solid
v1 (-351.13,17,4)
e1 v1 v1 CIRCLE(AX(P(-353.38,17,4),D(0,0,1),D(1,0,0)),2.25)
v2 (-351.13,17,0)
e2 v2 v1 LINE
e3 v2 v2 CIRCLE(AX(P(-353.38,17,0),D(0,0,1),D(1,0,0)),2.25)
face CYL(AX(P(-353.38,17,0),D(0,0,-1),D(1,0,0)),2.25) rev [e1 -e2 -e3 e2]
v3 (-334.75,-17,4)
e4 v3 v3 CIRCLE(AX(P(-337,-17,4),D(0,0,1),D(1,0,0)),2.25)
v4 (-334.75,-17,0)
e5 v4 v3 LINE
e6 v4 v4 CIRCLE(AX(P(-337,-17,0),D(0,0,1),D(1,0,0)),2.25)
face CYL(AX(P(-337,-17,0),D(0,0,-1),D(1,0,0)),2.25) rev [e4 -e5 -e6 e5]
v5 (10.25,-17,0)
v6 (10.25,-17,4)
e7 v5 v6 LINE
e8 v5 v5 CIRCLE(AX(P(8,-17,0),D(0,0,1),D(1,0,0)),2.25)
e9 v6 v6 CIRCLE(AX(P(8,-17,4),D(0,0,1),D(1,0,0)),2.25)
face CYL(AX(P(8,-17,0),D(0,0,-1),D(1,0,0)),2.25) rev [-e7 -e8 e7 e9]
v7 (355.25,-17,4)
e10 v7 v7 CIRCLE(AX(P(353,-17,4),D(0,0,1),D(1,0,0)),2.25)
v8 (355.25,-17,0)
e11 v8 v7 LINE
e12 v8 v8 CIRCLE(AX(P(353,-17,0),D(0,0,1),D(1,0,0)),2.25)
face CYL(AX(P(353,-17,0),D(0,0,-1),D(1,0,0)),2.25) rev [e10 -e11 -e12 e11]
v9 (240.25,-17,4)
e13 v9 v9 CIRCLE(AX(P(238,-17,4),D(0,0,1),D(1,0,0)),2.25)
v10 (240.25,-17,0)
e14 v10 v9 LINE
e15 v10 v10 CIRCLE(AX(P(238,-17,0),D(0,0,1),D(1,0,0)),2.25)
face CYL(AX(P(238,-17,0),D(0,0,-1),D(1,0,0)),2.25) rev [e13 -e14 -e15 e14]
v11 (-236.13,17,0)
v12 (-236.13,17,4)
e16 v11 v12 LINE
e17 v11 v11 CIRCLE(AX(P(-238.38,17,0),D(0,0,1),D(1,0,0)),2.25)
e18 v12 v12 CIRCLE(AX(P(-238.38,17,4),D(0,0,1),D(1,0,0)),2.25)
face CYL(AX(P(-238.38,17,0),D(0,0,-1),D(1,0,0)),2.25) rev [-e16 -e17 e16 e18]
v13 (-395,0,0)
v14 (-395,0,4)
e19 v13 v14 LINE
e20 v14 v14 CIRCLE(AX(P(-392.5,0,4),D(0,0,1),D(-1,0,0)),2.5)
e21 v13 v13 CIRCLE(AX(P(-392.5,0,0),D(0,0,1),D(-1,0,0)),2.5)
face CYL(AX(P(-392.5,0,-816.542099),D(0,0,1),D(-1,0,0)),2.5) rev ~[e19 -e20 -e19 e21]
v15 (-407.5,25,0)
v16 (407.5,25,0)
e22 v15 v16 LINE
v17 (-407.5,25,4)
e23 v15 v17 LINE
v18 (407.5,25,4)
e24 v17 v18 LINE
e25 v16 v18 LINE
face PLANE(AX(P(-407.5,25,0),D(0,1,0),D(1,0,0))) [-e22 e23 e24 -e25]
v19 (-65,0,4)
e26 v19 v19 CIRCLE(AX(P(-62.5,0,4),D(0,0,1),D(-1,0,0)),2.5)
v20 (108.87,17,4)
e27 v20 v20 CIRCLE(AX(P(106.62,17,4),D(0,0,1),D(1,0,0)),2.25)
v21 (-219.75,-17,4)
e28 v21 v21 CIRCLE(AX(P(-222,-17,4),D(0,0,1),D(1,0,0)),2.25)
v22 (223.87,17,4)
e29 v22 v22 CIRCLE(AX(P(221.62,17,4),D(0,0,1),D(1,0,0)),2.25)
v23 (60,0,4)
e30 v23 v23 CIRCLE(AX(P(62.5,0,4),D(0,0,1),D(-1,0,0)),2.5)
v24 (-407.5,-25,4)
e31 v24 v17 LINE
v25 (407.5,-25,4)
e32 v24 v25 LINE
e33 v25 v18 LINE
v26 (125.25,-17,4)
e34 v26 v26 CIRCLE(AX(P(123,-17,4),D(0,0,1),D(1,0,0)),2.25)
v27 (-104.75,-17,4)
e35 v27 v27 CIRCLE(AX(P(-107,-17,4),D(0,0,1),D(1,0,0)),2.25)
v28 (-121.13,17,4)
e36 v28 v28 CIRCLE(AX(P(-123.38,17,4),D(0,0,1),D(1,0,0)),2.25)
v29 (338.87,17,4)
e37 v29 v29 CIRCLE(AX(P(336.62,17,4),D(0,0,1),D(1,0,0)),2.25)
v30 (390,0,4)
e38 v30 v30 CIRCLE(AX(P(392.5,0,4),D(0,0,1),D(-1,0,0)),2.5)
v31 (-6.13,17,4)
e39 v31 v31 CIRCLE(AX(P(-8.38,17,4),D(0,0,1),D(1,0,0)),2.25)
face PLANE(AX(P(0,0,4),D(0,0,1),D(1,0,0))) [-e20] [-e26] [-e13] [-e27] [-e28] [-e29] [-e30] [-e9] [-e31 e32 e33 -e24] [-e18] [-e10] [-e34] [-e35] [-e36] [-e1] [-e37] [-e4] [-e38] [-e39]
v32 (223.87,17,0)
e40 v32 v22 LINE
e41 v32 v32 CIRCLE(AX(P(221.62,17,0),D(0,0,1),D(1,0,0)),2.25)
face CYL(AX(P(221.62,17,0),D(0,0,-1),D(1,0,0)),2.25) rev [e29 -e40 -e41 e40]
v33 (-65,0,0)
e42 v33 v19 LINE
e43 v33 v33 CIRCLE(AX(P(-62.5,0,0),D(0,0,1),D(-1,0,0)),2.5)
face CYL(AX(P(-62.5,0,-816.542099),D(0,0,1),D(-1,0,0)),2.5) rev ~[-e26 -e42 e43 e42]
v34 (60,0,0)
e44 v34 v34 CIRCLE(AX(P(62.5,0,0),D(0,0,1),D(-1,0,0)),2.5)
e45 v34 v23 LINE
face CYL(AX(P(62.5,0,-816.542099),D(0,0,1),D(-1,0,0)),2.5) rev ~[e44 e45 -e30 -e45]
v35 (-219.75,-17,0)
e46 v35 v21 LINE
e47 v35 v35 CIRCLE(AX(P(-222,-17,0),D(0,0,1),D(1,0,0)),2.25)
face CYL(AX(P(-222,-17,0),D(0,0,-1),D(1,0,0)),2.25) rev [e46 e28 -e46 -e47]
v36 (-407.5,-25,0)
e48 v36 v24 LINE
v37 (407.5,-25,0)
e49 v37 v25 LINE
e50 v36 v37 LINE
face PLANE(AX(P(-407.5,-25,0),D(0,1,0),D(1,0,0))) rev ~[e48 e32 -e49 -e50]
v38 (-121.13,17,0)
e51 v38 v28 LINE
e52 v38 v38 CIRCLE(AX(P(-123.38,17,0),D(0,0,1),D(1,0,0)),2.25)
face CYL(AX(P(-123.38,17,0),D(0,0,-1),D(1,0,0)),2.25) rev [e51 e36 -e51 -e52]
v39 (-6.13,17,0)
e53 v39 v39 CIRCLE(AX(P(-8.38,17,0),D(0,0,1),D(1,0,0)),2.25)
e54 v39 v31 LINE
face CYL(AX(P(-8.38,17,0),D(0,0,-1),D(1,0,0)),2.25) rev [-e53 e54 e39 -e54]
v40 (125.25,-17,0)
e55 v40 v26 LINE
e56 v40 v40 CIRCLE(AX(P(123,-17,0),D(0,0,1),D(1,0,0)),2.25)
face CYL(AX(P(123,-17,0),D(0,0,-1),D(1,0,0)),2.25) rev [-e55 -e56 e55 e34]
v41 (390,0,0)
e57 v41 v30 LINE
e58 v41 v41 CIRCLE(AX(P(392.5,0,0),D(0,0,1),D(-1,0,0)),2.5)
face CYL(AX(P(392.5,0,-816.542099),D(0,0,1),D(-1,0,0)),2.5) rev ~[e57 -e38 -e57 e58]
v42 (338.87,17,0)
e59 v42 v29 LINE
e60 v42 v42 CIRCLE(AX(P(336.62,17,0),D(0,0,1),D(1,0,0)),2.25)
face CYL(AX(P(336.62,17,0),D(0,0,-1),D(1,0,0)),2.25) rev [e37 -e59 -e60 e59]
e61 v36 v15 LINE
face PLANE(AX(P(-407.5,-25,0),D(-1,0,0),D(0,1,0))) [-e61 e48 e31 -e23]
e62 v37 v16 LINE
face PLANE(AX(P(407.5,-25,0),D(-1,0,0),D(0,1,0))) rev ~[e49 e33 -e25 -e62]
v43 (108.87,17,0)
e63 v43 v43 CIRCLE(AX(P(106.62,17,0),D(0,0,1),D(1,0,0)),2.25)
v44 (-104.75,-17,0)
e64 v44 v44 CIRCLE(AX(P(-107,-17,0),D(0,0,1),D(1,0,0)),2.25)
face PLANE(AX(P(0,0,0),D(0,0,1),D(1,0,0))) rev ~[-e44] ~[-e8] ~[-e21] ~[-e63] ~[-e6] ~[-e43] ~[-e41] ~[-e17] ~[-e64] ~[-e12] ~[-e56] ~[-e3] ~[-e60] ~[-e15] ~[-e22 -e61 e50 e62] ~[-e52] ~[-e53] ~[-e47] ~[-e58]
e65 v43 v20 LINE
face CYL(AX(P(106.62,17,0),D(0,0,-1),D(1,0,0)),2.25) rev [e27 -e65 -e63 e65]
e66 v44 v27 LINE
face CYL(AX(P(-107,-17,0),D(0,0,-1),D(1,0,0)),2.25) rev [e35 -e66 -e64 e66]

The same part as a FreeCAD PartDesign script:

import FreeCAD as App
import Part
import Sketcher

V = App.Vector

doc = App.newDocument("Part")
body = doc.addObject("PartDesign::Body", "Body")

sketch1 = doc.addObject("Sketcher::SketchObject", "Sketch")
body.addObject(sketch1)
sketch1.AttachmentSupport = (doc.XY_Plane, [""])
sketch1.MapMode = "FlatFace"
sketch1.addGeometry([
    Part.LineSegment(V(-407.5, 25, 0), V(-407.5, -25, 0)),
    Part.LineSegment(V(-407.5, -25, 0), V(407.5, -25, 0)),
    Part.LineSegment(V(407.5, -25, 0), V(407.5, 25, 0)),
    Part.LineSegment(V(407.5, 25, 0), V(-407.5, 25, 0)),
    Part.Circle(V(-337, -17, 0), V(0, 0, 1), 2.25),
    Part.Circle(V(-222, -17, 0), V(0, 0, 1), 2.25),
    Part.Circle(V(-107, -17, 0), V(0, 0, 1), 2.25),
    Part.Circle(V(8, -17, 0), V(0, 0, 1), 2.25),
    Part.Circle(V(123, -17, 0), V(0, 0, 1), 2.25),
    Part.Circle(V(238, -17, 0), V(0, 0, 1), 2.25),
    Part.Circle(V(353, -17, 0), V(0, 0, 1), 2.25),
    Part.Circle(V(-353.38, 17, 0), V(0, 0, 1), 2.25),
    Part.Circle(V(-238.38, 17, 0), V(0, 0, 1), 2.25),
    Part.Circle(V(-123.38, 17, 0), V(0, 0, 1), 2.25),
    Part.Circle(V(-8.38, 17, 0), V(0, 0, 1), 2.25),
    Part.Circle(V(106.62, 17, 0), V(0, 0, 1), 2.25),
    Part.Circle(V(221.62, 17, 0), V(0, 0, 1), 2.25),
    Part.Circle(V(336.62, 17, 0), V(0, 0, 1), 2.25),
], False)
sketch1.addConstraint([
    Sketcher.Constraint("Coincident", 0, 2, 1, 1),
    Sketcher.Constraint("Coincident", 1, 2, 2, 1),
    Sketcher.Constraint("Coincident", 2, 2, 3, 1),
    Sketcher.Constraint("Coincident", 3, 2, 0, 1),
    Sketcher.Constraint("Vertical", 0),
    Sketcher.Constraint("Horizontal", 1),
    Sketcher.Constraint("Vertical", 2),
    Sketcher.Constraint("Horizontal", 3),
    Sketcher.Constraint("Equal", 4, 5),
    Sketcher.Constraint("Equal", 5, 6),
    Sketcher.Constraint("Equal", 6, 7),
    Sketcher.Constraint("Equal", 7, 8),
    Sketcher.Constraint("Equal", 8, 9),
    Sketcher.Constraint("Equal", 9, 10),
    Sketcher.Constraint("Equal", 10, 11),
    Sketcher.Constraint("Equal", 11, 12),
    Sketcher.Constraint("Equal", 12, 13),
    Sketcher.Constraint("Equal", 13, 14),
    Sketcher.Constraint("Equal", 14, 15),
    Sketcher.Constraint("Equal", 15, 16),
    Sketcher.Constraint("Equal", 16, 17),
    Sketcher.Constraint("Symmetric", 0, 2, 2, 2, -1, 1),
    Sketcher.Constraint("Horizontal", 4, 3, 5, 3),
    Sketcher.Constraint("Horizontal", 5, 3, 6, 3),
    Sketcher.Constraint("Horizontal", 6, 3, 7, 3),
    Sketcher.Constraint("Horizontal", 7, 3, 8, 3),
    Sketcher.Constraint("Horizontal", 8, 3, 9, 3),
    Sketcher.Constraint("Horizontal", 9, 3, 10, 3),
    Sketcher.Constraint("Horizontal", 11, 3, 12, 3),
    Sketcher.Constraint("Horizontal", 12, 3, 13, 3),
    Sketcher.Constraint("Horizontal", 13, 3, 14, 3),
    Sketcher.Constraint("Horizontal", 14, 3, 15, 3),
    Sketcher.Constraint("Horizontal", 15, 3, 16, 3),
    Sketcher.Constraint("Horizontal", 16, 3, 17, 3),
    Sketcher.Constraint("Diameter", 4, 4.5),
    Sketcher.Constraint("DistanceX", 1, 1, 1, 2, 815.0),
    Sketcher.Constraint("DistanceY", 0, 2, 0, 1, 50.0),
    Sketcher.Constraint("DistanceX", 4, 3, -1, 1, 337.0),
    Sketcher.Constraint("DistanceY", 4, 3, -1, 1, 17.0),
    Sketcher.Constraint("DistanceX", 5, 3, -1, 1, 222.0),
    Sketcher.Constraint("DistanceX", 6, 3, -1, 1, 107.0),
    Sketcher.Constraint("DistanceX", -1, 1, 7, 3, 8.0),
    Sketcher.Constraint("DistanceX", -1, 1, 8, 3, 123.0),
    Sketcher.Constraint("DistanceX", -1, 1, 9, 3, 238.0),
    Sketcher.Constraint("DistanceX", -1, 1, 10, 3, 353.0),
    Sketcher.Constraint("DistanceY", -1, 1, 11, 3, 17.0),
    Sketcher.Constraint("DistanceX", 11, 3, 12, 3, 115.0),
    Sketcher.Constraint("DistanceX", 12, 3, 13, 3, 115.0),
    Sketcher.Constraint("DistanceX", 13, 3, 14, 3, 115.0),
    Sketcher.Constraint("DistanceX", 14, 3, 15, 3, 115.0),
    Sketcher.Constraint("DistanceX", 15, 3, 16, 3, 115.0),
    Sketcher.Constraint("DistanceX", 16, 3, 17, 3, 115.0),
    Sketcher.Constraint("DistanceX", 11, 3, -1, 1, 353.38),
])
pad1 = doc.addObject("PartDesign::Pad", "Pad")
body.addObject(pad1)
pad1.Profile = sketch1
pad1.Length = 4

sketch2 = doc.addObject("Sketcher::SketchObject", "Sketch001")
body.addObject(sketch2)
sketch2.AttachmentSupport = (doc.XY_Plane, [""])
sketch2.MapMode = "FlatFace"
sketch2.addGeometry([
    Part.Circle(V(-392.5, 0, 0), V(0, 0, 1), 2.5),
    Part.Circle(V(-62.5, 0, 0), V(0, 0, 1), 2.5),
    Part.Circle(V(62.5, 0, 0), V(0, 0, 1), 2.5),
    Part.Circle(V(392.5, 0, 0), V(0, 0, 1), 2.5),
], False)
sketch2.addConstraint([
    Sketcher.Constraint("Equal", 0, 1),
    Sketcher.Constraint("Equal", 1, 2),
    Sketcher.Constraint("Equal", 2, 3),
    Sketcher.Constraint("Symmetric", 1, 3, 2, 3, -1, 1),
    Sketcher.Constraint("Symmetric", 0, 3, 3, 3, -1, 1),
    Sketcher.Constraint("PointOnObject", 0, 3, -1),
    Sketcher.Constraint("PointOnObject", 1, 3, -1),
    Sketcher.Constraint("Diameter", 0, 5.0),
    Sketcher.Constraint("DistanceX", 0, 3, 1, 3, 330.0),
    Sketcher.Constraint("DistanceX", 1, 3, 2, 3, 125.0),
])
doc.recompute()
hole = doc.addObject("PartDesign::Hole", "Hole")
body.addObject(hole)
hole.Profile = sketch2
hole.ThreadType = "None"
hole.Diameter = 5
hole.DepthType = "ThroughAll"
hole.Reversed = True

doc.recompute()
